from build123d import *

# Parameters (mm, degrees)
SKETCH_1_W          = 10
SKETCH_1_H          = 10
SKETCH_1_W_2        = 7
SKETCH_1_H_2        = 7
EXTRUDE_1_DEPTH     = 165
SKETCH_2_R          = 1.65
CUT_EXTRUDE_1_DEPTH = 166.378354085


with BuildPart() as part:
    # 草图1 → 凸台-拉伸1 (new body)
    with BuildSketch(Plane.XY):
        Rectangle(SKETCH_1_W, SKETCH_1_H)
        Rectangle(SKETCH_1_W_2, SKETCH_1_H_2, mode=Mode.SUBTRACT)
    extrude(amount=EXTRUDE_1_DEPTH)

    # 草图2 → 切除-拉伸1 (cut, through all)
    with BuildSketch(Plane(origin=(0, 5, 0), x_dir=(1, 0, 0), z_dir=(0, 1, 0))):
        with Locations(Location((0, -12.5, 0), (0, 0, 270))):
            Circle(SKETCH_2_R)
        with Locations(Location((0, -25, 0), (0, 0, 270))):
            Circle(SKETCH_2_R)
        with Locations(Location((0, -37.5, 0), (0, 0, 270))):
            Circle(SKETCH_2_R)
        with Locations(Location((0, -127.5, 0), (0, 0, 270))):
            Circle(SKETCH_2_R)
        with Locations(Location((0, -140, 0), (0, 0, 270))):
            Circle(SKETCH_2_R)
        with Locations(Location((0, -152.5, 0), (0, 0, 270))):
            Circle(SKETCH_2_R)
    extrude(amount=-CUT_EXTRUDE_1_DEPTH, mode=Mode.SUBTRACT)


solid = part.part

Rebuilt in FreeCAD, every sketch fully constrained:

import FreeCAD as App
import Part
import Sketcher
from FreeCAD import Vector


def add_polygon(sketch, points):
    """Adds a closed chain of lines whose ends are joined by coincident constraints."""
    first, n = sketch.GeometryCount, len(points)
    for a, b in zip(points, points[1:] + points[:1]):
        sketch.addGeometry(Part.LineSegment(App.Vector(*a, 0), App.Vector(*b, 0)), False)
    for i in range(n):
        sketch.addConstraint(Sketcher.Constraint("Coincident", first + i, 2, first + (i + 1) % n, 1))

doc = App.newDocument("Part")
body = doc.addObject("PartDesign::Body", "Body")

sketch1 = body.newObject("Sketcher::SketchObject", "Sketch")
sketch1.AttachmentSupport = (doc.getObject("XY_Plane"), [""])
sketch1.MapMode = "FlatFace"
add_polygon(sketch1, [(-5, 5), (-5, -5), (5, -5), (5, 5)])
add_polygon(sketch1, [(4, -4), (-4, -4), (-4, 4), (4, 4)])
sketch1.addConstraint([
    Sketcher.Constraint("Vertical", 0),
    Sketcher.Constraint("Horizontal", 1),
    Sketcher.Constraint("Vertical", 2),
    Sketcher.Constraint("Horizontal", 3),
    Sketcher.Constraint("Horizontal", 4),
    Sketcher.Constraint("Vertical", 5),
    Sketcher.Constraint("Horizontal", 6),
    Sketcher.Constraint("Vertical", 7),
    Sketcher.Constraint("Symmetric", 0, 2, 2, 2, -1, 1),
    Sketcher.Constraint("Symmetric", 4, 2, 6, 2, -1, 1),
    Sketcher.Constraint("Equal", 3, 0),
    Sketcher.Constraint("Equal", 6, 5),
    Sketcher.Constraint("DistanceX", 1, 1, 1, 2, 10.0),
    Sketcher.Constraint("DistanceX", 4, 2, 4, 1, 7.0),
])
pad1 = body.newObject("PartDesign::Pad", "Pad")
pad1.Profile = sketch1
pad1.Length = 165

sketch2 = body.newObject("Sketcher::SketchObject", "Sketch001")
sketch2.AttachmentSupport = (doc.getObject("XZ_Plane"), [""])
sketch2.MapMode = "FlatFace"
sketch2.AttachmentOffset = App.Placement(Vector(0, 0, -5), App.Rotation())
sketch2.addGeometry([
    Part.Circle(Vector(0, 12.5, 0), Vector(0, 0, 1), 1.6),
    Part.Circle(Vector(0, 25, 0), Vector(0, 0, 1), 1.6),
    Part.Circle(Vector(0, 37.5, 0), Vector(0, 0, 1), 1.6),
    Part.Circle(Vector(0, 127.5, 0), Vector(0, 0, 1), 1.6),
    Part.Circle(Vector(0, 140, 0), Vector(0, 0, 1), 1.6),
    Part.Circle(Vector(0, 152.5, 0), Vector(0, 0, 1), 1.6),
], False)
sketch2.addConstraint([
    Sketcher.Constraint("Equal", 0, 1),
    Sketcher.Constraint("Equal", 1, 2),
    Sketcher.Constraint("Equal", 2, 3),
    Sketcher.Constraint("Equal", 3, 4),
    Sketcher.Constraint("Equal", 4, 5),
    Sketcher.Constraint("PointOnObject", 0, 3, -2),
    Sketcher.Constraint("PointOnObject", 1, 3, -2),
    Sketcher.Constraint("PointOnObject", 2, 3, -2),
    Sketcher.Constraint("PointOnObject", 3, 3, -2),
    Sketcher.Constraint("PointOnObject", 4, 3, -2),
    Sketcher.Constraint("PointOnObject", 5, 3, -2),
    Sketcher.Constraint("Diameter", 0, 3.3),
    Sketcher.Constraint("DistanceY", -1, 1, 1, 3, 25.0),
    Sketcher.Constraint("DistanceY", -1, 1, 4, 3, 140.0),
    Sketcher.Constraint("DistanceY", 0, 3, 2, 3, 25.0),
    Sketcher.Constraint("DistanceY", 2, 3, 3, 3, 90.0),
    Sketcher.Constraint("DistanceY", 3, 3, 5, 3, 25.0),
    Sketcher.Constraint("DistanceY", -1, 1, 0, 3, 12.5),
])
pocket1 = body.newObject("PartDesign::Pocket", "Pocket")
pocket1.Profile = sketch2
pocket1.Type = "ThroughAll"
pocket1.Reversed = True

doc.recompute()
